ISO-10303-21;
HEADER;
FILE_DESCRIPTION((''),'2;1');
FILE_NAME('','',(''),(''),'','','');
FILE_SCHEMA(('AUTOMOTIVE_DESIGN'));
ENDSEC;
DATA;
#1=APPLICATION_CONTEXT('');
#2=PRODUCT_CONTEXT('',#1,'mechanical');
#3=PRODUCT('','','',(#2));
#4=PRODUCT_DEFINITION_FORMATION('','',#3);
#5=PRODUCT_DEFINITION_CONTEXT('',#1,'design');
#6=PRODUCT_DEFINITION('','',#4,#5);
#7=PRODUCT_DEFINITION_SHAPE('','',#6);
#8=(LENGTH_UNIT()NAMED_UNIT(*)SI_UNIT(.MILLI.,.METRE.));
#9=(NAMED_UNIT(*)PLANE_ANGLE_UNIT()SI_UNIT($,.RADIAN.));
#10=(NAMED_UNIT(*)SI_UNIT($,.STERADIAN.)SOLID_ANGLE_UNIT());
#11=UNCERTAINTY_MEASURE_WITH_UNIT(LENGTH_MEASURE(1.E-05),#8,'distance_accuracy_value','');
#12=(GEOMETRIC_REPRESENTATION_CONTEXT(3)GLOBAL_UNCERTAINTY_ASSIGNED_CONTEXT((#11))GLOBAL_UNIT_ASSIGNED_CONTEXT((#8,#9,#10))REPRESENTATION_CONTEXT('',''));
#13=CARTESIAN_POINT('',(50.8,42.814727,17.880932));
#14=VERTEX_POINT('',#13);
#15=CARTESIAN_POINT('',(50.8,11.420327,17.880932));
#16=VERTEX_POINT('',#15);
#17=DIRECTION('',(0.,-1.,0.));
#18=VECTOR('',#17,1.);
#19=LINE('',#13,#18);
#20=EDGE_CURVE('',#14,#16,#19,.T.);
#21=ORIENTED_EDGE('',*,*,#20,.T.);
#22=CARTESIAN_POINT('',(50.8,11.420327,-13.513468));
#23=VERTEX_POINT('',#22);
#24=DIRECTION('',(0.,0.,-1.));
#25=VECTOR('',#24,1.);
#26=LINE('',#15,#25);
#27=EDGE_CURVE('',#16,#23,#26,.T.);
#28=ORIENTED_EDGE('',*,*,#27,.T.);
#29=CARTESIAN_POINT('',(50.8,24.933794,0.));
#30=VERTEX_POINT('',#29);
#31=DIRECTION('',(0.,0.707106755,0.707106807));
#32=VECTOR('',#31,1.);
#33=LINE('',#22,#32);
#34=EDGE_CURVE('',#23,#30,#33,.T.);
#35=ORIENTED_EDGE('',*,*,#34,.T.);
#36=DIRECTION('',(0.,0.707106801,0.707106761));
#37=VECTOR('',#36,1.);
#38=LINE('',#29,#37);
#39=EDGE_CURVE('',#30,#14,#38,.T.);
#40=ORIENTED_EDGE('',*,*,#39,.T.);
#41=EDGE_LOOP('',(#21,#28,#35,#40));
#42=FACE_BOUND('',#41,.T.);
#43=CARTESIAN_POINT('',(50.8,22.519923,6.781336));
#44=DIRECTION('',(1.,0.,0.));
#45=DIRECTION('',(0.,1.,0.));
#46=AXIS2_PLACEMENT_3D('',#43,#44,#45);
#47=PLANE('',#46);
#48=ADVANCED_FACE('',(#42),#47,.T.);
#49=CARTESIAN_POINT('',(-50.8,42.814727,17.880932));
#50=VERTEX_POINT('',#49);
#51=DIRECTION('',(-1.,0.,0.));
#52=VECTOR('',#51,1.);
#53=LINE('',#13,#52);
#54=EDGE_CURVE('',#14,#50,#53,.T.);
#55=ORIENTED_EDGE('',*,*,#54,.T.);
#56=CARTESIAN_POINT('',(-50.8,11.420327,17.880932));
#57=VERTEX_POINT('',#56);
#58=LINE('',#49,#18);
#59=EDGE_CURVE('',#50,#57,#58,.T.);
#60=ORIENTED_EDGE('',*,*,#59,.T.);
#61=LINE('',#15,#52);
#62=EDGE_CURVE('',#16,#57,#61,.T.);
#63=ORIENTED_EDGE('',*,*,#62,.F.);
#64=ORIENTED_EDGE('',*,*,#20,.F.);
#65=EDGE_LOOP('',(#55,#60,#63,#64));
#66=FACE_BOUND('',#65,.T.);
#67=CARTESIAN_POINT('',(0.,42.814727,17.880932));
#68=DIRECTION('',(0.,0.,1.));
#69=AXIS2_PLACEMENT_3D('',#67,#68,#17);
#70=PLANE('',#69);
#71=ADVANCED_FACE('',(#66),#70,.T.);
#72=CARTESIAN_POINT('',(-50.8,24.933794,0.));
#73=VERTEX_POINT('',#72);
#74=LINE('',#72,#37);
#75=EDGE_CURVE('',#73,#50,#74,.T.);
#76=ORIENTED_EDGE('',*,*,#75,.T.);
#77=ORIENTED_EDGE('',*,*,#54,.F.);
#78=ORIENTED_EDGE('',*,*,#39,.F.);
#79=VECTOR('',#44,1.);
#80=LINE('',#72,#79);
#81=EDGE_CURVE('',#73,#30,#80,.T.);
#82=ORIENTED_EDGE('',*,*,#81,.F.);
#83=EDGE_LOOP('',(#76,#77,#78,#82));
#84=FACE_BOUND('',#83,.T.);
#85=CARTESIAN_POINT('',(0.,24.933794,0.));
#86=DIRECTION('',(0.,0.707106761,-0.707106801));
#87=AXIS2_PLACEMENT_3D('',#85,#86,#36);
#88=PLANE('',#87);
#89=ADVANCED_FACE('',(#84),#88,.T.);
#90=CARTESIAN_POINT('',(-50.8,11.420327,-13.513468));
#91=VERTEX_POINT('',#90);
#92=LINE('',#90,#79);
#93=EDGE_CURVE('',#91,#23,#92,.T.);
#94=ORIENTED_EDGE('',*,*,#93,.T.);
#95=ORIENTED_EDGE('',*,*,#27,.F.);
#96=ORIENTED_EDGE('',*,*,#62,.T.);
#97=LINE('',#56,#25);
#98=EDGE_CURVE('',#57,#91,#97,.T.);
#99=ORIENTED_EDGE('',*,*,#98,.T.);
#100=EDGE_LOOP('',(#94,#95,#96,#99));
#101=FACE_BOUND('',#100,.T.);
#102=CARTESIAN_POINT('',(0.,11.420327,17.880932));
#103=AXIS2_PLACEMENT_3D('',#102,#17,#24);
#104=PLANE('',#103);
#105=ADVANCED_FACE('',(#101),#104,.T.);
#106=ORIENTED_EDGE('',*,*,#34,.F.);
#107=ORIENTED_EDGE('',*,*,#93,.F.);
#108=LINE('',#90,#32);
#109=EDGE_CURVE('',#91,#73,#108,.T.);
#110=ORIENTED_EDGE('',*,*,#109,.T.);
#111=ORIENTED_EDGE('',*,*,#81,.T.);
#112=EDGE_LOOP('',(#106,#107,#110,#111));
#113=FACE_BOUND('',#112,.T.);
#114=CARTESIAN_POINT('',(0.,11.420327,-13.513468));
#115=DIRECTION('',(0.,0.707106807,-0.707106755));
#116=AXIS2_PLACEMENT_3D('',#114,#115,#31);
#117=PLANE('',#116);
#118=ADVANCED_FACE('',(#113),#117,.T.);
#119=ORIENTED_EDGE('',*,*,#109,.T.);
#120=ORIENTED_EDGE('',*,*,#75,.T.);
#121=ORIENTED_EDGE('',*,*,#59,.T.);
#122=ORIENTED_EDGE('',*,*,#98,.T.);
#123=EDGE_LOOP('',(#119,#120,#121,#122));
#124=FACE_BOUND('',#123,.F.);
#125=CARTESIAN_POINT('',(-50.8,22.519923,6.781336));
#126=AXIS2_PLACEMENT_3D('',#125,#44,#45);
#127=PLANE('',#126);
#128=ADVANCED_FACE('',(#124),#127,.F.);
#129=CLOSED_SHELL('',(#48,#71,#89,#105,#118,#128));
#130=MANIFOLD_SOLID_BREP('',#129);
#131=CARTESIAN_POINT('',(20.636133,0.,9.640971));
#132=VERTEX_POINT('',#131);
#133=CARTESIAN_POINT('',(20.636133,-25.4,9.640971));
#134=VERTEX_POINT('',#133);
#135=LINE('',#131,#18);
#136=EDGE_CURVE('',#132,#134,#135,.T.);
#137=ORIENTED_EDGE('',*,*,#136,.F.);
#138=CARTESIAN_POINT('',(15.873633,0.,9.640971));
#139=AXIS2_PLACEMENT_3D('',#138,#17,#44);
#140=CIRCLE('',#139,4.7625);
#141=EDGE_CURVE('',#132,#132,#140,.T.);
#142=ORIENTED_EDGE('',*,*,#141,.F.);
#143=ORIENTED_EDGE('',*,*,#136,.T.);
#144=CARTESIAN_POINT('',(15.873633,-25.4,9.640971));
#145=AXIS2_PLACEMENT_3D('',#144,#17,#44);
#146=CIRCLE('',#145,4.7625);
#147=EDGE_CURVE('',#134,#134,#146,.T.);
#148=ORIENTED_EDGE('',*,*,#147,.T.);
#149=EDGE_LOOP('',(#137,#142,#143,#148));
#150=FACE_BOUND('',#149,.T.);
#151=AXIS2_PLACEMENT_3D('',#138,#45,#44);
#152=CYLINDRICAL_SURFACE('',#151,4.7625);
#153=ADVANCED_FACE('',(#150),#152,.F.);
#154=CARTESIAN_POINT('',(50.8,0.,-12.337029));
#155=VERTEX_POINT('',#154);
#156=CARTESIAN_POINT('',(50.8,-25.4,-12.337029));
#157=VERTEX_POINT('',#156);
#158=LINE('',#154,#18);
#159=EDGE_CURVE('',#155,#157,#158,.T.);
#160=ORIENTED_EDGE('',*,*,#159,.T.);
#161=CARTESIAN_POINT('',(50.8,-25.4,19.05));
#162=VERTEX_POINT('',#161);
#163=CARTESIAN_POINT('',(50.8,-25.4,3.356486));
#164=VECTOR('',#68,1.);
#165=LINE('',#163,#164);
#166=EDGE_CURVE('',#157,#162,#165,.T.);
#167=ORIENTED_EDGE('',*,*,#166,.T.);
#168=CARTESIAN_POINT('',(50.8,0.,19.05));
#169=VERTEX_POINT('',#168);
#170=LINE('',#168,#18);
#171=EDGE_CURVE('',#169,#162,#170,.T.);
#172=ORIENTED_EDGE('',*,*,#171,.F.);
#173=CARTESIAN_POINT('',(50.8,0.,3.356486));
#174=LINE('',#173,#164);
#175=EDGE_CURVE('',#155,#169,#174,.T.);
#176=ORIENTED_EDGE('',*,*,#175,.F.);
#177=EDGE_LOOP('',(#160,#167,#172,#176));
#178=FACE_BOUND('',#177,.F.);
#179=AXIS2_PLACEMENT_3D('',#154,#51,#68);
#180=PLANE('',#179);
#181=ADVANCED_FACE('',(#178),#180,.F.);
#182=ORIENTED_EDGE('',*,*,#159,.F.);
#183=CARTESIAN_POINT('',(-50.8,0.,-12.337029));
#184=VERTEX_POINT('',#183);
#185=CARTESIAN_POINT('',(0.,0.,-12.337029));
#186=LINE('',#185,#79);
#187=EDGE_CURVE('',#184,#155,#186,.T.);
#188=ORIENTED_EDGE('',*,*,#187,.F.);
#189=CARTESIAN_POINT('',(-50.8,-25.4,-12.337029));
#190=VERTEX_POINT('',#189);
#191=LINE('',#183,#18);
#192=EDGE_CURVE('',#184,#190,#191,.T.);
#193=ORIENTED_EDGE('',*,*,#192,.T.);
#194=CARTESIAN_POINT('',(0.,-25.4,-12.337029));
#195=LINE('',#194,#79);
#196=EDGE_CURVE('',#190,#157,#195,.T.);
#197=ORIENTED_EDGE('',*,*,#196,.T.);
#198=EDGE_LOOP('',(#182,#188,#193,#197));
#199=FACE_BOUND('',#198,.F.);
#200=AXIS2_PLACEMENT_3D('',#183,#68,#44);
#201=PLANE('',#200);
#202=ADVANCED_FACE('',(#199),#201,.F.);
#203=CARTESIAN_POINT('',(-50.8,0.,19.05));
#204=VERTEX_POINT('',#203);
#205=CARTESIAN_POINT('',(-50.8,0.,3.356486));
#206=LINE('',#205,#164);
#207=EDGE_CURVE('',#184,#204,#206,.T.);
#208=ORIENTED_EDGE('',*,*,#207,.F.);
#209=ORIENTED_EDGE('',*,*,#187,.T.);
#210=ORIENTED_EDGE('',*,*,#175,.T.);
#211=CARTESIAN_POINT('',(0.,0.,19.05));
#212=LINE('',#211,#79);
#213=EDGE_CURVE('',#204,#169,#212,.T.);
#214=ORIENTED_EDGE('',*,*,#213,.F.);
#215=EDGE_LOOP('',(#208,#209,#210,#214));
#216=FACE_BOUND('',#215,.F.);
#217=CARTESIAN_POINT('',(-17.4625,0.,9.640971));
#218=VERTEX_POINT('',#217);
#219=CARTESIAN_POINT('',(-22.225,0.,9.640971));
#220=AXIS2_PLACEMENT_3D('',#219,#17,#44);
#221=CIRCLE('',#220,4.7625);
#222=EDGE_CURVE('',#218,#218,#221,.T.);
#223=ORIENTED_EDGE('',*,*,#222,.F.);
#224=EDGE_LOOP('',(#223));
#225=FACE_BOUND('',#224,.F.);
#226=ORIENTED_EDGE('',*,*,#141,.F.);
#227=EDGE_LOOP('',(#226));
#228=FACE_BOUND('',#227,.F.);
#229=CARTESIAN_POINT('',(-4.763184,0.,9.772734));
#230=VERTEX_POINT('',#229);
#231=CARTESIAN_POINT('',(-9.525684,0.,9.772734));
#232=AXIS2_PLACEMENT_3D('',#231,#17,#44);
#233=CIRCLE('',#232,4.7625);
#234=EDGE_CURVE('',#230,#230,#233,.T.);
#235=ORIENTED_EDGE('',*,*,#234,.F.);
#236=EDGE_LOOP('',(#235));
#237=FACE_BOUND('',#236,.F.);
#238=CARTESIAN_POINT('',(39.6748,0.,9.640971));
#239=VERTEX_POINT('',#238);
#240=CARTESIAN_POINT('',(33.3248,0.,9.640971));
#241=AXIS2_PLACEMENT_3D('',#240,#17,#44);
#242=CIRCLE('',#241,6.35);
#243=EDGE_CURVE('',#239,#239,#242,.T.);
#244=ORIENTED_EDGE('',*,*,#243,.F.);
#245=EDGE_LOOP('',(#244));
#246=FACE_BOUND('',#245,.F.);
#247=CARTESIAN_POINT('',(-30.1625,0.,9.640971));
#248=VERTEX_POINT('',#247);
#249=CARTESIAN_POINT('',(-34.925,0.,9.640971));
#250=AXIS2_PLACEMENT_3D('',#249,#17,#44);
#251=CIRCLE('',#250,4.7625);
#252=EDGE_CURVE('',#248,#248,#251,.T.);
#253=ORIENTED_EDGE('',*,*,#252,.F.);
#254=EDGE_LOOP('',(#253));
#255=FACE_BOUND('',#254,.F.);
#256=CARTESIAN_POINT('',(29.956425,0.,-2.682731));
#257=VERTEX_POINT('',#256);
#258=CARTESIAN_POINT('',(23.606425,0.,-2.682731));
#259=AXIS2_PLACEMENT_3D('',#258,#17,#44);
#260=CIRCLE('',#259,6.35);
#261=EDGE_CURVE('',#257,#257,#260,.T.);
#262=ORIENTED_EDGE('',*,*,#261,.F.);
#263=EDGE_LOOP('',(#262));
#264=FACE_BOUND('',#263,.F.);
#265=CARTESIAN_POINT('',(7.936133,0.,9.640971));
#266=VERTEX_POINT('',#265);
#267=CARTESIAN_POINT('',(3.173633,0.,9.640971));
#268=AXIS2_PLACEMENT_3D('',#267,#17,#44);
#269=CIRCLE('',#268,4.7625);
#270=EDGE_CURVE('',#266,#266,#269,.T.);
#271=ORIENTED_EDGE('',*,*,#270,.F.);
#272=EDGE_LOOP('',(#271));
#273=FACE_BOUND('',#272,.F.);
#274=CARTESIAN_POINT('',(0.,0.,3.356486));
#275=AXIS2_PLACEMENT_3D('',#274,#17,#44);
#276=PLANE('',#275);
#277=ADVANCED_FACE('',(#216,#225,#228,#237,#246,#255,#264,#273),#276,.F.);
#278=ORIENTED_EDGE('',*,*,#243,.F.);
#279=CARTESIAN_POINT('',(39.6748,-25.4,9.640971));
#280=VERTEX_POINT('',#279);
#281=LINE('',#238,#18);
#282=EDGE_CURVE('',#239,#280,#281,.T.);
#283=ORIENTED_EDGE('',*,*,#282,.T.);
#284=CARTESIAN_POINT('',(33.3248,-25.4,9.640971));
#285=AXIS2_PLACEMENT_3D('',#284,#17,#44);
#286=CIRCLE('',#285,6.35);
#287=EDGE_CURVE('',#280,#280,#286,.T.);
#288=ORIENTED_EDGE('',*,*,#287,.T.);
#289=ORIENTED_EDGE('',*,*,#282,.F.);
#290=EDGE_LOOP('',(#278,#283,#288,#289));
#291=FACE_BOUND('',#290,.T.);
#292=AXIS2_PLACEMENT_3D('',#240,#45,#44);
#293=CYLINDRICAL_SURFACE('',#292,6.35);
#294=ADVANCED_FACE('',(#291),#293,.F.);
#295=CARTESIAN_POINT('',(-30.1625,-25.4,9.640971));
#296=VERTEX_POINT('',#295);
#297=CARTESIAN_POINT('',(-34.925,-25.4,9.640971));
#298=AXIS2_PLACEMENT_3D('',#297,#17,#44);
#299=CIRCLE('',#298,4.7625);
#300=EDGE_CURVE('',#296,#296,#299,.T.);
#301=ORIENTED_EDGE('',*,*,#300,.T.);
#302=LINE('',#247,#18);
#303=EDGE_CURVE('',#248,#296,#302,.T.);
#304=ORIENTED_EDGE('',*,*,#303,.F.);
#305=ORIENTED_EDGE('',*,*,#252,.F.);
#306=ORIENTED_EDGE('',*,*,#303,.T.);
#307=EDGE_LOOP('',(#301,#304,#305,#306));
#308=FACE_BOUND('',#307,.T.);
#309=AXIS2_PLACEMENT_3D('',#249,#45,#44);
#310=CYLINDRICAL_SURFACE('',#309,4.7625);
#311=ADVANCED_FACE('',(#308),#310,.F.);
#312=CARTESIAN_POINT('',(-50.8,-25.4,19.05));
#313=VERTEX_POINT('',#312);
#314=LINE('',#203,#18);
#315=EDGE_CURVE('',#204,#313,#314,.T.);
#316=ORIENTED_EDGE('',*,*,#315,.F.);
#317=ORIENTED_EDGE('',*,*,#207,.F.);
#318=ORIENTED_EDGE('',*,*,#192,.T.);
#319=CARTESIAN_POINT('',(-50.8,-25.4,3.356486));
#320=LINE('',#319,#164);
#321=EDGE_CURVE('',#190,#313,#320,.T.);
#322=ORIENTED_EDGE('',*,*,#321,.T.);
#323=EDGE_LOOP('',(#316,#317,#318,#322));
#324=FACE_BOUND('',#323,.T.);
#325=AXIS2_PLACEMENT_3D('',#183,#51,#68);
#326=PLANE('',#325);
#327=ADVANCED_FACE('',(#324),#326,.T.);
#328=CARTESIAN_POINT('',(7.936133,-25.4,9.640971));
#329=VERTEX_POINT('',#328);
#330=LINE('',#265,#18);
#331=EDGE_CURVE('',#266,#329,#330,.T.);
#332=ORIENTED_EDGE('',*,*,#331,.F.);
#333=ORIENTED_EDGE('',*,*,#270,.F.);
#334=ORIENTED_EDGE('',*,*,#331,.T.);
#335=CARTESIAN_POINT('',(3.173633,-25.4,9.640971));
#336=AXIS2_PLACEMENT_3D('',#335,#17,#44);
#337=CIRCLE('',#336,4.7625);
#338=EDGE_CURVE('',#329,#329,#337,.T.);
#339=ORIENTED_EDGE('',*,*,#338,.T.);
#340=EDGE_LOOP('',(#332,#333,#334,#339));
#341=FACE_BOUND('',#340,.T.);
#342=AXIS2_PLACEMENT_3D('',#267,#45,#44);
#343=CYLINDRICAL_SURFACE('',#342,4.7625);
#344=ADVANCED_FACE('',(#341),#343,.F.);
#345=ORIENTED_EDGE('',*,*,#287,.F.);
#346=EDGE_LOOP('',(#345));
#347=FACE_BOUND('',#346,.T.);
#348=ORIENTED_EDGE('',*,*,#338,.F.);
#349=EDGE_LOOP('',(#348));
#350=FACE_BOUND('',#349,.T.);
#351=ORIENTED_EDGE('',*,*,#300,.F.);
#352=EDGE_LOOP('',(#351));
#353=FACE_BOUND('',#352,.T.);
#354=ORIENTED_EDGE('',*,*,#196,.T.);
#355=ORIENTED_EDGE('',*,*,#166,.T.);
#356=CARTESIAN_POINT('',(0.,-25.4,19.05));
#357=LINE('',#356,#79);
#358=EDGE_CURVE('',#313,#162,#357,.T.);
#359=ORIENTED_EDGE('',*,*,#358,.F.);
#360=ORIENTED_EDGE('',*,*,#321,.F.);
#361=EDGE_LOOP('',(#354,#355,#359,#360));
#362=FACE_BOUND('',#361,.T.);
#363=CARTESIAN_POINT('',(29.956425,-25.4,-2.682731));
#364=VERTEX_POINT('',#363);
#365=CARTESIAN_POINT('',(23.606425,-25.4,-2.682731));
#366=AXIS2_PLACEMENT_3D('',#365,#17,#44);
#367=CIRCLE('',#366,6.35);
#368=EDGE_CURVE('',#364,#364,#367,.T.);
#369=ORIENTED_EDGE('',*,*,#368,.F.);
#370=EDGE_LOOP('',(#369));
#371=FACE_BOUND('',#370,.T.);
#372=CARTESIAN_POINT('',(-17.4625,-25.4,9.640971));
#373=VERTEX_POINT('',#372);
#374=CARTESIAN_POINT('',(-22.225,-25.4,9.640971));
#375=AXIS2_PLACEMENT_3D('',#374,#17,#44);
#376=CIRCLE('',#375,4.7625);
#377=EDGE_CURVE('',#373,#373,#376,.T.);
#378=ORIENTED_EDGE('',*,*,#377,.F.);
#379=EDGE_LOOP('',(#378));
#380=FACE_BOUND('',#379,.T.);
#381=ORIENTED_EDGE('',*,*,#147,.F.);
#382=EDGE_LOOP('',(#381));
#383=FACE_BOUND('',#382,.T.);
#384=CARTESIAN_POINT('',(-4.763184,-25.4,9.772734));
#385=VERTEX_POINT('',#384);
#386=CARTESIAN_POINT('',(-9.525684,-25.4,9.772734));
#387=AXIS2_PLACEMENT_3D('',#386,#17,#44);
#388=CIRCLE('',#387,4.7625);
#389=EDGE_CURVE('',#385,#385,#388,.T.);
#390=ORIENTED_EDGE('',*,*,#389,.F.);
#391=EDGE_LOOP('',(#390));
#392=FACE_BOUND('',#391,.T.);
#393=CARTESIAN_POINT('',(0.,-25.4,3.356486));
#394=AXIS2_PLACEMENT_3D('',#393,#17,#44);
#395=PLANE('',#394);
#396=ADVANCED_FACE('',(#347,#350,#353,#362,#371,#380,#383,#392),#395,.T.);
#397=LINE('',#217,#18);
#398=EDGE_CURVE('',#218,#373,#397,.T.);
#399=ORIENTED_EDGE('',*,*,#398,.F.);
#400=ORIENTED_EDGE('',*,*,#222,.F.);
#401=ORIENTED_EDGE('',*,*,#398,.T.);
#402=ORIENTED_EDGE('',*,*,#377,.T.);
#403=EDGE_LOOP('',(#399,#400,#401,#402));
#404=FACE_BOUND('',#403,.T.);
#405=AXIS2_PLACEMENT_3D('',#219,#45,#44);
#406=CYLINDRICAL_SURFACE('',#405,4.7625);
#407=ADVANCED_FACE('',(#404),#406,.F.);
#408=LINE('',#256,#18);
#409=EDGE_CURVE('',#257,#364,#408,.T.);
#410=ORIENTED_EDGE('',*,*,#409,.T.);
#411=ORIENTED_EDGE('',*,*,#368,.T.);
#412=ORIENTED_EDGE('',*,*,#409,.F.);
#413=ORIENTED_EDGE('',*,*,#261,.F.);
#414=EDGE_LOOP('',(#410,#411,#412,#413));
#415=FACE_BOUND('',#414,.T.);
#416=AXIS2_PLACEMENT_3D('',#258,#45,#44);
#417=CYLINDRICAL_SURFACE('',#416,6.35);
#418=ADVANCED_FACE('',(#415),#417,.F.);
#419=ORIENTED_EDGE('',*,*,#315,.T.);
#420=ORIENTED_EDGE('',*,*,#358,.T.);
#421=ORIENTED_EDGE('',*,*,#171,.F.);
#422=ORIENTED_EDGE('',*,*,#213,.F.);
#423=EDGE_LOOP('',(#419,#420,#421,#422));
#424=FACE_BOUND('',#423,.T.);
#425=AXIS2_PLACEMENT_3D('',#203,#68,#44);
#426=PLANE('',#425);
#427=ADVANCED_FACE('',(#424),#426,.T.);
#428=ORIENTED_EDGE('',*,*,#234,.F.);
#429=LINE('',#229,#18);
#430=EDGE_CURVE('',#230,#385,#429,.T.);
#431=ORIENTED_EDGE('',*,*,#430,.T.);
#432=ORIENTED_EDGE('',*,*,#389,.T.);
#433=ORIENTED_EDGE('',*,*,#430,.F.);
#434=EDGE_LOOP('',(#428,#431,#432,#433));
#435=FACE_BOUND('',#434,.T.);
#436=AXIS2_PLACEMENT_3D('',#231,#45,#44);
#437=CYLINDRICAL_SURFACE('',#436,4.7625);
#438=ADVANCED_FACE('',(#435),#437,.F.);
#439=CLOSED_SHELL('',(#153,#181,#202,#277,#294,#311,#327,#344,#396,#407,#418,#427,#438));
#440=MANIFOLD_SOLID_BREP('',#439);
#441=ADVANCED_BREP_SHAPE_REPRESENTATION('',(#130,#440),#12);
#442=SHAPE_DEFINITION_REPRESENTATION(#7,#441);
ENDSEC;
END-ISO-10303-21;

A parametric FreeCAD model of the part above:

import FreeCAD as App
import Part
import Sketcher
from FreeCAD import Vector
Q = App.Units.Quantity


def add_polygon(sketch, points):
    """Adds a closed chain of lines whose ends are joined by coincident constraints."""
    first, n = sketch.GeometryCount, len(points)
    for a, b in zip(points, points[1:] + points[:1]):
        sketch.addGeometry(Part.LineSegment(App.Vector(*a, 0), App.Vector(*b, 0)), False)
    for i in range(n):
        sketch.addConstraint(Sketcher.Constraint("Coincident", first + i, 2, first + (i + 1) % n, 1))

doc = App.newDocument("Part")
body = doc.addObject("PartDesign::Body", "Body")

# Sketch on XZ plane
sketch1 = body.newObject("Sketcher::SketchObject", "Sketch")
sketch1.AttachmentSupport = (doc.getObject("XZ_Plane"), [""])
sketch1.MapMode = "FlatFace"
add_polygon(sketch1, [(-50.8, 19.1), (-50.8, -12.3), (50.8, -12.3), (50.8, 19.1)])  # lines 0-3
sketch1.addGeometry(Part.Circle(Vector(23.6, -2.7, 0), Vector(0, 0, 1), 6.3), False)  # 4
sketch1.addGeometry(Part.Circle(Vector(-34.9, 9.6, 0), Vector(0, 0, 1), 4.8), False)  # 5
sketch1.addGeometry(Part.Circle(Vector(-22.2, 9.6, 0), Vector(0, 0, 1), 4.8), False)  # 6
sketch1.addGeometry(Part.Circle(Vector(-9.5, 9.8, 0), Vector(0, 0, 1), 4.8), False)  # 7
sketch1.addGeometry(Part.Circle(Vector(3.2, 9.6, 0), Vector(0, 0, 1), 4.8), False)  # 8
sketch1.addGeometry(Part.Circle(Vector(15.9, 9.6, 0), Vector(0, 0, 1), 4.8), False)  # 9
sketch1.addGeometry(Part.Circle(Vector(33.3, 9.6, 0), Vector(0, 0, 1), 6.3), False)  # 10
sketch1.addConstraint([
    Sketcher.Constraint("Vertical", 0),
    Sketcher.Constraint("Horizontal", 1),
    Sketcher.Constraint("Vertical", 2),
    Sketcher.Constraint("Horizontal", 3),
    Sketcher.Constraint("Equal", 5, 6),
    Sketcher.Constraint("Equal", 6, 7),
    Sketcher.Constraint("Equal", 7, 8),
    Sketcher.Constraint("Equal", 8, 9),
    Sketcher.Constraint("Equal", 4, 10),
    Sketcher.Constraint("Horizontal", 5, 3, 6, 3),
    Sketcher.Constraint("Horizontal", 6, 3, 8, 3),
    Sketcher.Constraint("Horizontal", 8, 3, 9, 3),
    Sketcher.Constraint("Horizontal", 9, 3, 10, 3),
    Sketcher.Constraint("Diameter", 4, Q("0.5 in")),
    Sketcher.Constraint("DistanceX", 1, 1, 1, 2, Q("4 in")),
    Sketcher.Constraint("Diameter", 5, Q("0.375 in")),
    Sketcher.Constraint("DistanceX", 0, 2, -1, 1, Q("2 in")),
    Sketcher.Constraint("DistanceX", 5, 3, 6, 3, Q("0.5 in")),
    Sketcher.Constraint("DistanceX", 8, 3, 9, 3, Q("0.5 in")),
    Sketcher.Constraint("DistanceY", -1, 1, 2, 2, Q("0.75 in")),
    Sketcher.Constraint("DistanceX", 5, 3, -1, 1, Q("1.375 in")),
    Sketcher.Constraint("DistanceX", -1, 1, 10, 3, Q("1.312 in")),
    Sketcher.Constraint("DistanceY", 0, 2, 0, 1, 31.387029),
    Sketcher.Constraint("DistanceY", 0, 2, 5, 3, 21.978),
    Sketcher.Constraint("DistanceY", 4, 3, -1, 1, 2.682731),
    Sketcher.Constraint("DistanceX", 7, 3, 4, 3, 33.132109),
    Sketcher.Constraint("DistanceX", -1, 1, 4, 3, 23.606425),
    Sketcher.Constraint("DistanceY", -1, 1, 7, 3, 9.772734),
    Sketcher.Constraint("DistanceX", -1, 1, 8, 3, 3.173633),
])
pad1 = body.newObject("PartDesign::Pad", "Pad")
pad1.Profile = sketch1
pad1.Length = Q("1 in")
body2 = doc.addObject("PartDesign::Body", "Body001")

# Sketch on YZ plane
sketch2 = body2.newObject("Sketcher::SketchObject", "Sketch001")
sketch2.AttachmentSupport = (doc.getObject("YZ_Plane001"), [""])
sketch2.MapMode = "FlatFace"
add_polygon(sketch2, [(11, 18), (11, -14), (25, 0), (43, 18)])  # lines 0-3
sketch2.addConstraint([
    Sketcher.Constraint("Vertical", 0),
    Sketcher.Constraint("Horizontal", 3),
    Sketcher.Constraint("PointOnObject", 1, 2, -1),
    Sketcher.Constraint("Parallel", 1, 2),
    Sketcher.Constraint("Equal", 3, 0),
    Sketcher.Constraint("DistanceX", 3, 2, 3, 1, Q("1.236 in")),
    Sketcher.Constraint("Distance", 1, 19.110929),
    Sketcher.Constraint("DistanceX", -1, 1, 0, 2, 11.420327),
])
pad2 = body2.newObject("PartDesign::Pad", "Pad001")
pad2.Profile = sketch2
pad2.Length = Q("4 in")
pad2.Midplane = True

doc.recompute()
